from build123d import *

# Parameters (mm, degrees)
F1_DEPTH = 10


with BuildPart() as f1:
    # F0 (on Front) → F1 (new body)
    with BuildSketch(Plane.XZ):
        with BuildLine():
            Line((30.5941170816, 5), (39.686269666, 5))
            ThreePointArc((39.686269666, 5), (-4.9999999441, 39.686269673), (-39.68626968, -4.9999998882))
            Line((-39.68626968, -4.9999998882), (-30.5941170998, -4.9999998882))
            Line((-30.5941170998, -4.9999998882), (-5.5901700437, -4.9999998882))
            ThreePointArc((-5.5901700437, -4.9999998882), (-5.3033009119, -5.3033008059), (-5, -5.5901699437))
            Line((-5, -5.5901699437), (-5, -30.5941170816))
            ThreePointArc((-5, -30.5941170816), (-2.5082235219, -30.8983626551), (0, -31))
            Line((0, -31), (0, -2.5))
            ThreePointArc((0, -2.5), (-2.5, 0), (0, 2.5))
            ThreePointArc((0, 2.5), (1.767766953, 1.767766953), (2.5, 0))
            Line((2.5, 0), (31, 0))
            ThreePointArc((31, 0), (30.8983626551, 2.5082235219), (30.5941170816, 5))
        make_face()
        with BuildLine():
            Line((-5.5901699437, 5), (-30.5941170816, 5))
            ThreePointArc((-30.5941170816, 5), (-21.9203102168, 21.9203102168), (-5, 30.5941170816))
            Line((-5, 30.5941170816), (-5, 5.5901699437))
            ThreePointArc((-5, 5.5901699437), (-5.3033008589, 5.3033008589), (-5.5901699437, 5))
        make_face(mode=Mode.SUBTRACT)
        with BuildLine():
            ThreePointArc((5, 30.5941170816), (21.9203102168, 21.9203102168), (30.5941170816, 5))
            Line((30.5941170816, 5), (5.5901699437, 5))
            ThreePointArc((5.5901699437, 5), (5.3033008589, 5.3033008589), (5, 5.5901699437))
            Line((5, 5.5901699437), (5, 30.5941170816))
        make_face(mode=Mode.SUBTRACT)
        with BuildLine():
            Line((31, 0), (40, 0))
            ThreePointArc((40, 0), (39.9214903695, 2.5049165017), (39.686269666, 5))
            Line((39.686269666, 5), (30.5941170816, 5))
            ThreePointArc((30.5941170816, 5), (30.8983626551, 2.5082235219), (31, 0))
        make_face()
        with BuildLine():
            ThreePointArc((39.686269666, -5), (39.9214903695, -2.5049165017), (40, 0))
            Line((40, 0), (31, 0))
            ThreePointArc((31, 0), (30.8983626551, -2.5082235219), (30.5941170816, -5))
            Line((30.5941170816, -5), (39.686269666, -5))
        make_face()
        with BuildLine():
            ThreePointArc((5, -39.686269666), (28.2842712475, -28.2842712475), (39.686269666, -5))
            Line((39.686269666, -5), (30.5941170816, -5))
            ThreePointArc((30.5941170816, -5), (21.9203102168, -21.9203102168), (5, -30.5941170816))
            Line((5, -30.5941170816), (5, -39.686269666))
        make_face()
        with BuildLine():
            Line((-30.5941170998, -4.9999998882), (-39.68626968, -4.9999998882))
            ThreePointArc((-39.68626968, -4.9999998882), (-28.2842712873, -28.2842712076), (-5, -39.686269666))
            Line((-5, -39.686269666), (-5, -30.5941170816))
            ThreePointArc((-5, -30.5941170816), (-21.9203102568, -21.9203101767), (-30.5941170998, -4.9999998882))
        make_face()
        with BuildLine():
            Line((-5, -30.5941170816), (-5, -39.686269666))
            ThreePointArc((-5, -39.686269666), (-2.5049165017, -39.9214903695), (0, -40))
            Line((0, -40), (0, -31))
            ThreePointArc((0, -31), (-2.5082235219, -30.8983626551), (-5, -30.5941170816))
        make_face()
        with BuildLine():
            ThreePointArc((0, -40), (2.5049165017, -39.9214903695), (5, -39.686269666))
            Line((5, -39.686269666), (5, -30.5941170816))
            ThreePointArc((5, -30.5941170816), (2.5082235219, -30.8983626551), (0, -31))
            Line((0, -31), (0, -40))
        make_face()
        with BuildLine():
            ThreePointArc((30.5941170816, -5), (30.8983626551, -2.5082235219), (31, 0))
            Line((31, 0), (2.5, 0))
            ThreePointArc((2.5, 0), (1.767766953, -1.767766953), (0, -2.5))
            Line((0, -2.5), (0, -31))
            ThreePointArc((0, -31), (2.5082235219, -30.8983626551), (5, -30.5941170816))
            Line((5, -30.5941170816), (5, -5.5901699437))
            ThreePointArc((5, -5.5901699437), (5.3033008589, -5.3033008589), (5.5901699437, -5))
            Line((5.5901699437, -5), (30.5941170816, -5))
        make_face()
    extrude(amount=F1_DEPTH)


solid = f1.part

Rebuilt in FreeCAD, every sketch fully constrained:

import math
import FreeCAD as App
import Part
import Sketcher
Q = App.Units.Quantity

doc = App.newDocument("Part")
body = doc.addObject("PartDesign::Body", "Body")

# Sketch on XZ plane
sketch1 = doc.addObject("Sketcher::SketchObject", "Sketch")
body.addObject(sketch1)
sketch1.AttachmentSupport = (doc.XZ_Plane, [""])
sketch1.MapMode = "FlatFace"
sketch1.addGeometry([
    Part.ArcOfCircle(Part.Circle(App.Vector(0, 0, 0), App.Vector(0, 0, 1), 40), math.radians(7), math.radians(263)),  # 0
    Part.ArcOfCircle(Part.Circle(App.Vector(0, 0, 0), App.Vector(0, 0, 1), 40), math.radians(-97.18), math.radians(-90)),  # 1
    Part.ArcOfCircle(Part.Circle(App.Vector(0, 0, 0), App.Vector(0, 0, 1), 40), math.radians(-90), math.radians(-82.82)),  # 2
    Part.ArcOfCircle(Part.Circle(App.Vector(0, 0, 0), App.Vector(0, 0, 1), 40), math.radians(-83), math.radians(-7)),  # 3
    Part.ArcOfCircle(Part.Circle(App.Vector(0, 0, 0), App.Vector(0, 0, 1), 40), math.radians(-7.18), math.radians(0)),  # 4
    Part.ArcOfCircle(Part.Circle(App.Vector(0, 0, 0), App.Vector(0, 0, 1), 40), math.radians(0), math.radians(7.18)),  # 5
    Part.ArcOfCircle(Part.Circle(App.Vector(0, 0, 0), App.Vector(0, 0, 1), 2.5), math.radians(90), math.radians(270)),  # 6
    Part.ArcOfCircle(Part.Circle(App.Vector(0, 0, 0), App.Vector(0, 0, 1), 2.5), math.radians(0), math.radians(90)),  # 7
    Part.ArcOfCircle(Part.Circle(App.Vector(0, 0, 0), App.Vector(0, 0, 1), 2.5), math.radians(-90), math.radians(0)),  # 8
    Part.ArcOfCircle(Part.Circle(App.Vector(0, 0, 0), App.Vector(0, 0, 1), 31), math.radians(-81), math.radians(-9)),  # 9
    Part.LineSegment(App.Vector(5, -30.6, 0), App.Vector(5, -5.6, 0)),  # 10
    Part.ArcOfCircle(Part.Circle(App.Vector(0, 0, 0), App.Vector(0, 0, 1), 7.5), math.radians(-48.19), math.radians(-41.81)),  # 11
    Part.LineSegment(App.Vector(5.6, -5, 0), App.Vector(30.6, -5, 0)),  # 12
    Part.LineSegment(App.Vector(-5, -5.6, 0), App.Vector(-5, -30.6, 0)),  # 13
    Part.ArcOfCircle(Part.Circle(App.Vector(0, 0, 0), App.Vector(0, 0, 1), 31), math.radians(-171), math.radians(-99)),  # 14
    Part.LineSegment(App.Vector(-30.6, -5, 0), App.Vector(-5.6, -5, 0)),  # 15
    Part.ArcOfCircle(Part.Circle(App.Vector(0, 0, 0), App.Vector(0, 0, 1), 7.5), math.radians(-138.19), math.radians(-131.81)),  # 16
    Part.ArcOfCircle(Part.Circle(App.Vector(0, 0, 0), App.Vector(0, 0, 1), 7.5), math.radians(131.81), math.radians(138.19)),  # 17
    Part.LineSegment(App.Vector(-5.6, 5, 0), App.Vector(-30.6, 5, 0)),  # 18
    Part.ArcOfCircle(Part.Circle(App.Vector(0, 0, 0), App.Vector(0, 0, 1), 31), math.radians(99), math.radians(171)),  # 19
    Part.LineSegment(App.Vector(-5, 30.6, 0), App.Vector(-5, 5.6, 0)),  # 20
    Part.ArcOfCircle(Part.Circle(App.Vector(0, 0, 0), App.Vector(0, 0, 1), 31), math.radians(9), math.radians(81)),  # 21
    Part.LineSegment(App.Vector(30.6, 5, 0), App.Vector(5.6, 5, 0)),  # 22
    Part.ArcOfCircle(Part.Circle(App.Vector(0, 0, 0), App.Vector(0, 0, 1), 7.5), math.radians(41.81), math.radians(48.19)),  # 23
    Part.LineSegment(App.Vector(5, 5.6, 0), App.Vector(5, 30.6, 0)),  # 24
], False)
sketch1.addConstraint([
    Sketcher.Constraint("Tangent", 0, 2, 1, 1),
    Sketcher.Constraint("Tangent", 1, 2, 2, 1),
    Sketcher.Constraint("Tangent", 2, 2, 3, 1),
    Sketcher.Constraint("Tangent", 3, 2, 4, 1),
    Sketcher.Constraint("Tangent", 4, 2, 5, 1),
    Sketcher.Constraint("Tangent", 5, 2, 0, 1),
    Sketcher.Constraint("Tangent", 6, 1, 7, 2),
    Sketcher.Constraint("Tangent", 7, 1, 8, 2),
    Sketcher.Constraint("Tangent", 8, 1, 6, 2),
    Sketcher.Constraint("Coincident", 9, 1, 10, 1),
    Sketcher.Constraint("Coincident", 10, 2, 11, 1),
    Sketcher.Constraint("Coincident", 11, 2, 12, 1),
    Sketcher.Constraint("Coincident", 12, 2, 9, 2),
    Sketcher.Constraint("Coincident", 13, 2, 14, 2),
    Sketcher.Constraint("Coincident", 14, 1, 15, 1),
    Sketcher.Constraint("Coincident", 15, 2, 16, 1),
    Sketcher.Constraint("Coincident", 16, 2, 13, 1),
    Sketcher.Constraint("Coincident", 17, 2, 18, 1),
    Sketcher.Constraint("Coincident", 18, 2, 19, 2),
    Sketcher.Constraint("Coincident", 19, 1, 20, 1),
    Sketcher.Constraint("Coincident", 20, 2, 17, 1),
    Sketcher.Constraint("Coincident", 21, 1, 22, 1),
    Sketcher.Constraint("Coincident", 22, 2, 23, 1),
    Sketcher.Constraint("Coincident", 23, 2, 24, 1),
    Sketcher.Constraint("Coincident", 24, 2, 21, 2),
    Sketcher.Constraint("Vertical", 10),
    Sketcher.Constraint("Horizontal", 12),
    Sketcher.Constraint("Vertical", 13),
    Sketcher.Constraint("Horizontal", 15),
    Sketcher.Constraint("Horizontal", 18),
    Sketcher.Constraint("Vertical", 20),
    Sketcher.Constraint("Horizontal", 22),
    Sketcher.Constraint("Vertical", 24),
    Sketcher.Constraint("Coincident", 0, 3, -1, 1),
    Sketcher.Constraint("Coincident", 2, 3, -1, 1),
    Sketcher.Constraint("Coincident", 6, 3, -1, 1),
    Sketcher.Constraint("Coincident", 9, 3, -1, 1),
    Sketcher.Constraint("Coincident", 11, 3, -1, 1),
    Sketcher.Constraint("Coincident", 14, 3, -1, 1),
    Sketcher.Constraint("Coincident", 16, 3, -1, 1),
    Sketcher.Constraint("Coincident", 17, 3, -1, 1),
    Sketcher.Constraint("Coincident", 19, 3, -1, 1),
    Sketcher.Constraint("Coincident", 21, 3, -1, 1),
    Sketcher.Constraint("Coincident", 23, 3, -1, 1),
    Sketcher.Constraint("Equal", 2, 3),
    Sketcher.Constraint("Equal", 9, 14),
    Sketcher.Constraint("Equal", 11, 16),
    Sketcher.Constraint("Equal", 16, 17),
    Sketcher.Constraint("Equal", 14, 19),
    Sketcher.Constraint("Equal", 19, 21),
    Sketcher.Constraint("Equal", 17, 23),
    Sketcher.Constraint("PointOnObject", 1, 2, -2),
    Sketcher.Constraint("PointOnObject", 4, 2, -1),
    Sketcher.Constraint("PointOnObject", 6, 1, -2),
    Sketcher.Constraint("PointOnObject", 7, 1, -1),
    Sketcher.Constraint("PointOnObject", 8, 1, -2),
    Sketcher.Constraint("Horizontal", 0, 2, 2, 2),
    Sketcher.Constraint("Horizontal", 3, 2, 11, 2),
    Sketcher.Constraint("Horizontal", 9, 1, 13, 2),
    Sketcher.Constraint("Horizontal", 12, 2, 14, 1),
    Sketcher.Constraint("Horizontal", 5, 2, 17, 2),
    Sketcher.Constraint("Horizontal", 18, 2, 21, 1),
    Sketcher.Constraint("Horizontal", 20, 2, 23, 2),
    Sketcher.Constraint("Vertical", 3, 2, 5, 2),
    Sketcher.Constraint("Vertical", 2, 2, 9, 1),
    Sketcher.Constraint("Vertical", 16, 2, 19, 1),
    Sketcher.Constraint("Equal", 22, 10),
    Sketcher.Constraint("Radius", 0, Q("40 mm")),
    Sketcher.Constraint("Radius", 9, Q("31 mm")),
    Sketcher.Constraint("Radius", 6, Q("2.5 mm")),
    Sketcher.Constraint("Radius", 11, Q("7.5 mm")),
    Sketcher.Constraint("DistanceX", 0, 2, -1, 1, Q("5 mm")),
])
pad1 = doc.addObject("PartDesign::Pad", "Pad")
body.addObject(pad1)
pad1.Profile = sketch1
pad1.Length = 10

doc.recompute()
